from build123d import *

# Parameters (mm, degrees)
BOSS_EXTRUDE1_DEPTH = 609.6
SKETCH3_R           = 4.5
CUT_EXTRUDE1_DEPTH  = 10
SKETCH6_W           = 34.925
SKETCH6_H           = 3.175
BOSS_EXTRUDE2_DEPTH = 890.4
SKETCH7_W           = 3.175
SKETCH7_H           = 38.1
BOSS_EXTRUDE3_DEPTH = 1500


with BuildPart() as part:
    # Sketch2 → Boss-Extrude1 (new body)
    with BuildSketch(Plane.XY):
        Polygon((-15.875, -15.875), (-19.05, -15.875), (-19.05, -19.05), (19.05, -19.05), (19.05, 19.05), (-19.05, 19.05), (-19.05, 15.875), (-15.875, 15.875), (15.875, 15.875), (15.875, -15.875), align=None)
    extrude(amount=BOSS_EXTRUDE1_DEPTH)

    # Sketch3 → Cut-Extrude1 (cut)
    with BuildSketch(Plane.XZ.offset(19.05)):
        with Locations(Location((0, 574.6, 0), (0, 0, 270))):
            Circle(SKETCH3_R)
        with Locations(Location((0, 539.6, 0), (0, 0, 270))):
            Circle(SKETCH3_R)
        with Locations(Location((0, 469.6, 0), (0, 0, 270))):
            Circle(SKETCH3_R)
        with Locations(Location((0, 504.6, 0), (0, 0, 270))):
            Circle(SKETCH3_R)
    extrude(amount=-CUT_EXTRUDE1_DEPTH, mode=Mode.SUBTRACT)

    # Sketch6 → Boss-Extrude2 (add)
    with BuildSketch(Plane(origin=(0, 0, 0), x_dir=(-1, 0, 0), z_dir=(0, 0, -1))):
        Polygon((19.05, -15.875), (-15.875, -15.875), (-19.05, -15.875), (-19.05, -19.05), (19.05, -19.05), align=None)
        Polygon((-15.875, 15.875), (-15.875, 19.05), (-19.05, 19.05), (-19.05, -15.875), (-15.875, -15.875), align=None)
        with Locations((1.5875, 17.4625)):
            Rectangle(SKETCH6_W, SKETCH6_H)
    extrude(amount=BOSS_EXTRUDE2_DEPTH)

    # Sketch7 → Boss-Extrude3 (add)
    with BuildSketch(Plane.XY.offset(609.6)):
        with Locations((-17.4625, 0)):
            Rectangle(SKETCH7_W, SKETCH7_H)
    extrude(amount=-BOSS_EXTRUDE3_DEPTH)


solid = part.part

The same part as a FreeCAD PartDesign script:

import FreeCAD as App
import Part
import Sketcher
Q = App.Units.Quantity

doc = App.newDocument("Part")
body = doc.addObject("PartDesign::Body", "Body")

# Sketch on XY plane
sketch1 = body.newObject("Sketcher::SketchObject", "Sketch")
sketch1.AttachmentSupport = (doc.getObject("XY_Plane"), [""])
sketch1.MapMode = "FlatFace"
sketch1.addGeometry(Part.LineSegment(App.Vector(-19.1, -15.9, 0), App.Vector(-19.1, -19.1, 0)), False)
sketch1.addGeometry(Part.LineSegment(App.Vector(-19.1, -19.1, 0), App.Vector(19.1, -19.1, 0)), False)
sketch1.addGeometry(Part.LineSegment(App.Vector(19.1, -19.1, 0), App.Vector(19.1, 19.1, 0)), False)
sketch1.addGeometry(Part.LineSegment(App.Vector(19.1, 19.1, 0), App.Vector(-19.1, 19.1, 0)), False)
sketch1.addGeometry(Part.LineSegment(App.Vector(-19.1, 19.1, 0), App.Vector(-19.1, 15.9, 0)), False)
sketch1.addGeometry(Part.LineSegment(App.Vector(-19.1, 15.9, 0), App.Vector(15.9, 15.9, 0)), False)
sketch1.addGeometry(Part.LineSegment(App.Vector(15.9, 15.9, 0), App.Vector(15.9, -15.9, 0)), False)
sketch1.addGeometry(Part.LineSegment(App.Vector(15.9, -15.9, 0), App.Vector(-19.1, -15.9, 0)), False)
sketch1.addConstraint(Sketcher.Constraint("Coincident", 0, 2, 1, 1))
sketch1.addConstraint(Sketcher.Constraint("Coincident", 1, 2, 2, 1))
sketch1.addConstraint(Sketcher.Constraint("Coincident", 2, 2, 3, 1))
sketch1.addConstraint(Sketcher.Constraint("Coincident", 3, 2, 4, 1))
sketch1.addConstraint(Sketcher.Constraint("Coincident", 4, 2, 5, 1))
sketch1.addConstraint(Sketcher.Constraint("Coincident", 5, 2, 6, 1))
sketch1.addConstraint(Sketcher.Constraint("Coincident", 6, 2, 7, 1))
sketch1.addConstraint(Sketcher.Constraint("Coincident", 7, 2, 0, 1))
sketch1.addConstraint(Sketcher.Constraint("Vertical", 0))
sketch1.addConstraint(Sketcher.Constraint("Horizontal", 1))
sketch1.addConstraint(Sketcher.Constraint("Vertical", 2))
sketch1.addConstraint(Sketcher.Constraint("Horizontal", 3))
sketch1.addConstraint(Sketcher.Constraint("Vertical", 4))
sketch1.addConstraint(Sketcher.Constraint("Horizontal", 5))
sketch1.addConstraint(Sketcher.Constraint("Vertical", 6))
sketch1.addConstraint(Sketcher.Constraint("Horizontal", 7))
sketch1.addConstraint(Sketcher.Constraint("Symmetric", 0, 2, 2, 2, -1, 1))
sketch1.addConstraint(Sketcher.Constraint("Symmetric", 4, 2, 7, 2, -1))
sketch1.addConstraint(Sketcher.Constraint("Equal", 3, 2))
sketch1.addConstraint(Sketcher.Constraint("DistanceX", 1, 1, 1, 2, Q("1.5 in")))
sketch1.addConstraint(Sketcher.Constraint("DistanceY", 6, 2, 6, 1, Q("1.25 in")))
sketch1.addConstraint(Sketcher.Constraint("DistanceX", 5, 1, 5, 2, Q("1.375 in")))
pad1 = body.newObject("PartDesign::Pad", "Pad")
pad1.Profile = sketch1
pad1.Length = Q("24 in")

# Sketch on XZ plane
sketch2 = body.newObject("Sketcher::SketchObject", "Sketch001")
sketch2.AttachmentSupport = (doc.getObject("XZ_Plane"), [""])
sketch2.MapMode = "FlatFace"
sketch2.AttachmentOffset = App.Placement(App.Vector(0, 0, 0.75 * 25.4), App.Rotation())
sketch2.addGeometry(Part.Circle(App.Vector(0, 574.6, 0), App.Vector(0, 0, 1), 4.5), False)
sketch2.addGeometry(Part.Circle(App.Vector(0, 539.6, 0), App.Vector(0, 0, 1), 4.5), False)
sketch2.addGeometry(Part.Circle(App.Vector(0, 469.6, 0), App.Vector(0, 0, 1), 4.5), False)
sketch2.addGeometry(Part.Circle(App.Vector(0, 504.6, 0), App.Vector(0, 0, 1), 4.5), False)
sketch2.addConstraint(Sketcher.Constraint("Equal", 0, 1))
sketch2.addConstraint(Sketcher.Constraint("Equal", 1, 2))
sketch2.addConstraint(Sketcher.Constraint("Equal", 2, 3))
sketch2.addConstraint(Sketcher.Constraint("PointOnObject", 0, 3, -2))
sketch2.addConstraint(Sketcher.Constraint("PointOnObject", 1, 3, -2))
sketch2.addConstraint(Sketcher.Constraint("PointOnObject", 2, 3, -2))
sketch2.addConstraint(Sketcher.Constraint("PointOnObject", 3, 3, -2))
sketch2.addConstraint(Sketcher.Constraint("Diameter", 0, Q("9 mm")))
sketch2.addConstraint(Sketcher.Constraint("DistanceY", -1, 1, 0, 3, Q("574.6 mm")))
sketch2.addConstraint(Sketcher.Constraint("DistanceY", -1, 1, 1, 3, Q("539.6 mm")))
sketch2.addConstraint(Sketcher.Constraint("DistanceY", -1, 1, 2, 3, Q("469.6 mm")))
sketch2.addConstraint(Sketcher.Constraint("DistanceY", -1, 1, 3, 3, Q("504.6 mm")))
pocket1 = body.newObject("PartDesign::Pocket", "Pocket")
pocket1.Profile = sketch2
pocket1.Length = 10

# Sketch on XY plane
sketch3 = body.newObject("Sketcher::SketchObject", "Sketch002")
sketch3.AttachmentSupport = (doc.getObject("XY_Plane"), [""])
sketch3.MapMode = "FlatFace"
sketch3.addGeometry(Part.LineSegment(App.Vector(-19.1, -15.9, 0), App.Vector(15.9, -15.9, 0)), False)
sketch3.addGeometry(Part.LineSegment(App.Vector(15.9, -15.9, 0), App.Vector(15.9, 15.9, 0)), False)
sketch3.addGeometry(Part.LineSegment(App.Vector(15.9, 15.9, 0), App.Vector(-19.1, 15.9, 0)), False)
sketch3.addGeometry(Part.LineSegment(App.Vector(-19.1, 15.9, 0), App.Vector(-19.1, 19.1, 0)), False)
sketch3.addGeometry(Part.LineSegment(App.Vector(-19.1, 19.1, 0), App.Vector(19.1, 19.1, 0)), False)
sketch3.addGeometry(Part.LineSegment(App.Vector(19.1, 19.1, 0), App.Vector(19.1, -19.1, 0)), False)
sketch3.addGeometry(Part.LineSegment(App.Vector(19.1, -19.1, 0), App.Vector(-19.1, -19.1, 0)), False)
sketch3.addGeometry(Part.LineSegment(App.Vector(-19.1, -19.1, 0), App.Vector(-19.1, -15.9, 0)), False)
sketch3.addConstraint(Sketcher.Constraint("Coincident", 0, 2, 1, 1))
sketch3.addConstraint(Sketcher.Constraint("Coincident", 1, 2, 2, 1))
sketch3.addConstraint(Sketcher.Constraint("Coincident", 2, 2, 3, 1))
sketch3.addConstraint(Sketcher.Constraint("Coincident", 3, 2, 4, 1))
sketch3.addConstraint(Sketcher.Constraint("Coincident", 4, 2, 5, 1))
sketch3.addConstraint(Sketcher.Constraint("Coincident", 5, 2, 6, 1))
sketch3.addConstraint(Sketcher.Constraint("Coincident", 6, 2, 7, 1))
sketch3.addConstraint(Sketcher.Constraint("Coincident", 7, 2, 0, 1))
sketch3.addConstraint(Sketcher.Constraint("Horizontal", 0))
sketch3.addConstraint(Sketcher.Constraint("Vertical", 1))
sketch3.addConstraint(Sketcher.Constraint("Horizontal", 2))
sketch3.addConstraint(Sketcher.Constraint("Vertical", 3))
sketch3.addConstraint(Sketcher.Constraint("Horizontal", 4))
sketch3.addConstraint(Sketcher.Constraint("Vertical", 5))
sketch3.addConstraint(Sketcher.Constraint("Horizontal", 6))
sketch3.addConstraint(Sketcher.Constraint("Vertical", 7))
sketch3.addConstraint(Sketcher.Constraint("Symmetric", 3, 2, 5, 2, -1, 1))
sketch3.addConstraint(Sketcher.Constraint("Symmetric", 2, 2, 7, 2, -1))
sketch3.addConstraint(Sketcher.Constraint("Equal", 6, 5))
sketch3.addConstraint(Sketcher.Constraint("DistanceX", 4, 1, 4, 2, Q("1.5 in")))
sketch3.addConstraint(Sketcher.Constraint("DistanceY", 1, 1, 1, 2, Q("1.25 in")))
sketch3.addConstraint(Sketcher.Constraint("DistanceX", 0, 1, 0, 2, Q("1.375 in")))
pad2 = body.newObject("PartDesign::Pad", "Pad001")
pad2.Profile = sketch3
pad2.Length = 890.4
pad2.Reversed = True

# Sketch on XY plane
sketch4 = body.newObject("Sketcher::SketchObject", "Sketch003")
sketch4.AttachmentSupport = (doc.getObject("XY_Plane"), [""])
sketch4.MapMode = "FlatFace"
sketch4.AttachmentOffset = App.Placement(App.Vector(0, 0, 24 * 25.4), App.Rotation())
sketch4.addGeometry(Part.LineSegment(App.Vector(-19.1, 19.1, 0), App.Vector(-19.1, -19.1, 0)), False)
sketch4.addGeometry(Part.LineSegment(App.Vector(-19.1, -19.1, 0), App.Vector(-15.9, -19.1, 0)), False)
sketch4.addGeometry(Part.LineSegment(App.Vector(-15.9, -19.1, 0), App.Vector(-15.9, 19.1, 0)), False)
sketch4.addGeometry(Part.LineSegment(App.Vector(-15.9, 19.1, 0), App.Vector(-19.1, 19.1, 0)), False)
sketch4.addConstraint(Sketcher.Constraint("Coincident", 0, 2, 1, 1))
sketch4.addConstraint(Sketcher.Constraint("Coincident", 1, 2, 2, 1))
sketch4.addConstraint(Sketcher.Constraint("Coincident", 2, 2, 3, 1))
sketch4.addConstraint(Sketcher.Constraint("Coincident", 3, 2, 0, 1))
sketch4.addConstraint(Sketcher.Constraint("Vertical", 0))
sketch4.addConstraint(Sketcher.Constraint("Horizontal", 1))
sketch4.addConstraint(Sketcher.Constraint("Vertical", 2))
sketch4.addConstraint(Sketcher.Constraint("Horizontal", 3))
sketch4.addConstraint(Sketcher.Constraint("DistanceY", 0, 2, 0, 1, Q("1.5 in")))
sketch4.addConstraint(Sketcher.Constraint("DistanceX", 1, 1, 1, 2, Q("0.125 in")))
sketch4.addConstraint(Sketcher.Constraint("DistanceX", 0, 2, -1, 1, Q("0.75 in")))
sketch4.addConstraint(Sketcher.Constraint("DistanceY", 0, 2, -1, 1, Q("0.75 in")))
pad3 = body.newObject("PartDesign::Pad", "Pad002")
pad3.Profile = sketch4
pad3.Length = 1500
pad3.Reversed = True

doc.recompute()
